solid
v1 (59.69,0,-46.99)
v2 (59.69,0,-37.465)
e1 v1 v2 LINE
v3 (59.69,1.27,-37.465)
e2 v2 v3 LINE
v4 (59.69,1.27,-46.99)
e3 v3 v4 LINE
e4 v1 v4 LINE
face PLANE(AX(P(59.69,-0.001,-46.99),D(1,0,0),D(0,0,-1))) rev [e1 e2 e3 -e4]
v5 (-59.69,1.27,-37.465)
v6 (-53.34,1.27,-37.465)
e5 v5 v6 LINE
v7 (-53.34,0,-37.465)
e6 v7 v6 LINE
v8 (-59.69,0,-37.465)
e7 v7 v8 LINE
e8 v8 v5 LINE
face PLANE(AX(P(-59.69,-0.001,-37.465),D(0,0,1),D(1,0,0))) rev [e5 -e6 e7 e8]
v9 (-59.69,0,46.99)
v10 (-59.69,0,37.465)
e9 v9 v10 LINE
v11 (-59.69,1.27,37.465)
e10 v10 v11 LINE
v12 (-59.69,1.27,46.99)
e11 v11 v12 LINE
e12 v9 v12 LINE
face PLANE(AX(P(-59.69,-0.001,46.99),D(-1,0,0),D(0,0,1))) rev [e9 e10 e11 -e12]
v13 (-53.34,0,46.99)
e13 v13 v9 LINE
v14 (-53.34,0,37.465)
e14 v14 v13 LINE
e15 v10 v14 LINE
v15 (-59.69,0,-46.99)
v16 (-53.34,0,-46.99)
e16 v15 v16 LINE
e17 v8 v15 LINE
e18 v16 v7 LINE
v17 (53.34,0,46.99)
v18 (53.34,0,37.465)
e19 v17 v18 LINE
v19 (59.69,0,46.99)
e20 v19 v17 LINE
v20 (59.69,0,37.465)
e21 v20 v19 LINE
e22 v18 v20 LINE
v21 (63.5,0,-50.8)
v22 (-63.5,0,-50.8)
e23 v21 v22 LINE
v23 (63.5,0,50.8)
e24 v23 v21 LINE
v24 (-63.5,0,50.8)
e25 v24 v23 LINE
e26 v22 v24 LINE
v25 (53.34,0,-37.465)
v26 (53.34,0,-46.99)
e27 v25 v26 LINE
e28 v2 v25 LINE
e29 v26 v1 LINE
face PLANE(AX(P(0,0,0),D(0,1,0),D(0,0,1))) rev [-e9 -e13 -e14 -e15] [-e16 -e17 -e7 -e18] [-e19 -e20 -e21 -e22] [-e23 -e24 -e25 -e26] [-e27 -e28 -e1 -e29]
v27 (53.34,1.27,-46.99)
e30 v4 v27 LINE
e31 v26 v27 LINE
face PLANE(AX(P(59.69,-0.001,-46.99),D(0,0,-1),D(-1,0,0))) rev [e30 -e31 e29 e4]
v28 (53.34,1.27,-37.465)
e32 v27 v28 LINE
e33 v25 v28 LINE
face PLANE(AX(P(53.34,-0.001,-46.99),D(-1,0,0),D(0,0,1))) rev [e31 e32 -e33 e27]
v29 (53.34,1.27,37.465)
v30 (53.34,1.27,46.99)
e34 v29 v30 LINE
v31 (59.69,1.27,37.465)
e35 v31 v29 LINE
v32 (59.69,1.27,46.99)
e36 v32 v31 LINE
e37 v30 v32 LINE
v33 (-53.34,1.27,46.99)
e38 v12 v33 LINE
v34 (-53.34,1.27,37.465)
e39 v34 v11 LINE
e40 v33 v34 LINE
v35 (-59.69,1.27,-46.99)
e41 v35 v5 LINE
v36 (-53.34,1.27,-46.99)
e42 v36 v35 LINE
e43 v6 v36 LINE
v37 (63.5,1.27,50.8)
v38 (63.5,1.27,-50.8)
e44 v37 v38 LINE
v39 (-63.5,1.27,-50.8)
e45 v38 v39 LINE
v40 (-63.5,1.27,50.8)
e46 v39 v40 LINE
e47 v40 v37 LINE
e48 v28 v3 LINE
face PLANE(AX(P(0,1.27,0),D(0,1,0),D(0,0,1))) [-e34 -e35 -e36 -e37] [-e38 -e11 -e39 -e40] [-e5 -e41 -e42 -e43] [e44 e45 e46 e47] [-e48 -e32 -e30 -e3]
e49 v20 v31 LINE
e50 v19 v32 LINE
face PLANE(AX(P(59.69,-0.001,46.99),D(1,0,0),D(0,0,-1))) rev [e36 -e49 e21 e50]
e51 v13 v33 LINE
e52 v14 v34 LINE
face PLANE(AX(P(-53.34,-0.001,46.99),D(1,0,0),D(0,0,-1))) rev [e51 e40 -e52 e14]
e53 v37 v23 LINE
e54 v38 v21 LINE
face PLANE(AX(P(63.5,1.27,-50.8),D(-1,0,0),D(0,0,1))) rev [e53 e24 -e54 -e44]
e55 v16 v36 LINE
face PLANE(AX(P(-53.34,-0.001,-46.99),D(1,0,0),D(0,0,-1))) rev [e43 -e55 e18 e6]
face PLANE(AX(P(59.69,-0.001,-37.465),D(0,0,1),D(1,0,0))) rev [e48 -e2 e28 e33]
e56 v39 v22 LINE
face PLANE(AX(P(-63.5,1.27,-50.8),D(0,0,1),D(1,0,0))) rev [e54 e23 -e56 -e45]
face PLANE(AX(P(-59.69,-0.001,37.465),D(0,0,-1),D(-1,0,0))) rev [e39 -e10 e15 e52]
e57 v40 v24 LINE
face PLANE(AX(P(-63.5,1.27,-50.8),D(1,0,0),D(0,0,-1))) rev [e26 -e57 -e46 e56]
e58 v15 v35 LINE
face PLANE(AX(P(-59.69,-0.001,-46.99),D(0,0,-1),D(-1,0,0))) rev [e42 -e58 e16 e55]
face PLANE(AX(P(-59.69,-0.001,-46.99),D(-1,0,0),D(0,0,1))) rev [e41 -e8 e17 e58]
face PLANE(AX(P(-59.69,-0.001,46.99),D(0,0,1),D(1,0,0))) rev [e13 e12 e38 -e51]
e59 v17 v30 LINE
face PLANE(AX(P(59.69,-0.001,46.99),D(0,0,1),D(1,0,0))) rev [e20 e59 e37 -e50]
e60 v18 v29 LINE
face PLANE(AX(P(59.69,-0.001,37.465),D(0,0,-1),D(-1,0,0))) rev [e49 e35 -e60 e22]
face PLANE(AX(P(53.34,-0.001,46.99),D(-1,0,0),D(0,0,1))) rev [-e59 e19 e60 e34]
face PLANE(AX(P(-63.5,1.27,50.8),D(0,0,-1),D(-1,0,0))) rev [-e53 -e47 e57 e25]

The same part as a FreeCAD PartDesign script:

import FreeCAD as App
import Part
import Sketcher
from FreeCAD import Vector
Q = App.Units.Quantity


def add_polygon(sketch, points):
    """Adds a closed chain of lines whose ends are joined by coincident constraints."""
    first, n = sketch.GeometryCount, len(points)
    for a, b in zip(points, points[1:] + points[:1]):
        sketch.addGeometry(Part.LineSegment(App.Vector(*a, 0), App.Vector(*b, 0)), False)
    for i in range(n):
        sketch.addConstraint(Sketcher.Constraint("Coincident", first + i, 2, first + (i + 1) % n, 1))

doc = App.newDocument("Part")
params = doc.addObject("Spreadsheet::Sheet", "Params")
for row, (alias, value) in enumerate([
    ("sketch1_width", "5 in"),
    ("sketch1_height", "4 in"),
    ("pad1_length", "0.05 in"),
    ("sketch2_width", "0.25 in"),
    ("sketch2_height", "0.375 in"),
    ("sketch3_width", "0.25 in"),
    ("sketch3_height", "0.375 in"),
    ("sketch4_width", "0.25 in"),
    ("sketch4_height", "0.375 in"),
    ("sketch5_width", "0.25 in"),
    ("sketch5_height", "0.375 in"),
], start=1):
    params.set(f"A{row}", alias)
    params.set(f"B{row}", "=" + value)
    params.setAlias(f"B{row}", alias)

body = doc.addObject("PartDesign::Body", "Body")

# Sketch on XZ plane
sketch1 = body.newObject("Sketcher::SketchObject", "Sketch")
sketch1.AttachmentSupport = (doc.getObject("XZ_Plane"), [""])
sketch1.MapMode = "FlatFace"
add_polygon(sketch1, [(-64, -51), (-64, 51), (64, 51), (64, -51)])  # lines 0-3
sketch1.addConstraint(Sketcher.Constraint("Vertical", 0))
sketch1.addConstraint(Sketcher.Constraint("Horizontal", 1))
sketch1.addConstraint(Sketcher.Constraint("Vertical", 2))
sketch1.addConstraint(Sketcher.Constraint("Horizontal", 3))
sketch1.addConstraint(Sketcher.Constraint("Symmetric", 0, 2, 2, 2, -1, 1))
sketch1.addConstraint(Sketcher.Constraint("DistanceX", 1, 1, 1, 2, Q("5 in")))
sketch1.addConstraint(Sketcher.Constraint("DistanceY", 0, 1, 0, 2, Q("4 in")))
sketch1.setExpression("Constraints[9]", "Params.sketch1_width")
sketch1.setExpression("Constraints[10]", "Params.sketch1_height")
pad1 = body.newObject("PartDesign::Pad", "Pad")
pad1.Profile = sketch1
pad1.setExpression("Length", "Params.pad1_length")
pad1.Reversed = True

# Sketch on XZ plane
sketch2 = body.newObject("Sketcher::SketchObject", "Sketch001")
sketch2.AttachmentSupport = (doc.getObject("XZ_Plane"), [""])
sketch2.MapMode = "FlatFace"
sketch2.AttachmentOffset = App.Placement(Vector(0, 0, -0.05 * 25.4), App.Rotation())
add_polygon(sketch2, [(-60, -47), (-60, -37), (-53, -37), (-53, -47)])  # lines 0-3
sketch2.addConstraint(Sketcher.Constraint("Vertical", 0))
sketch2.addConstraint(Sketcher.Constraint("Horizontal", 1))
sketch2.addConstraint(Sketcher.Constraint("Vertical", 2))
sketch2.addConstraint(Sketcher.Constraint("Horizontal", 3))
sketch2.addConstraint(Sketcher.Constraint("DistanceX", 1, 1, 1, 2, Q("0.25 in")))
sketch2.addConstraint(Sketcher.Constraint("DistanceX", 1, 2, -1, 1, Q("2.1 in")))
sketch2.addConstraint(Sketcher.Constraint("DistanceY", 0, 1, 0, 2, Q("0.375 in")))
sketch2.addConstraint(Sketcher.Constraint("DistanceY", 2, 2, -1, 1, Q("1.85 in")))
sketch2.setExpression("Constraints[8]", "Params.sketch2_width")
sketch2.setExpression("Constraints[10]", "Params.sketch2_height")
pocket1 = body.newObject("PartDesign::Pocket", "Pocket")
pocket1.Profile = sketch2
pocket1.Type = "UpToFirst"
pocket1.Reversed = True

# Sketch on XZ plane
sketch3 = body.newObject("Sketcher::SketchObject", "Sketch002")
sketch3.AttachmentSupport = (doc.getObject("XZ_Plane"), [""])
sketch3.MapMode = "FlatFace"
sketch3.AttachmentOffset = App.Placement(Vector(0, 0, -0.05 * 25.4), App.Rotation())
add_polygon(sketch3, [(53, -47), (53, -37), (60, -37), (60, -47)])  # lines 0-3
sketch3.addConstraint(Sketcher.Constraint("Vertical", 0))
sketch3.addConstraint(Sketcher.Constraint("Horizontal", 1))
sketch3.addConstraint(Sketcher.Constraint("Vertical", 2))
sketch3.addConstraint(Sketcher.Constraint("Horizontal", 3))
sketch3.addConstraint(Sketcher.Constraint("DistanceX", 1, 1, 1, 2, Q("0.25 in")))
sketch3.addConstraint(Sketcher.Constraint("DistanceX", -1, 1, 0, 2, Q("2.1 in")))
sketch3.addConstraint(Sketcher.Constraint("DistanceY", 0, 1, 0, 2, Q("0.375 in")))
sketch3.addConstraint(Sketcher.Constraint("DistanceY", 2, 2, -1, 1, Q("1.85 in")))
sketch3.setExpression("Constraints[8]", "Params.sketch3_width")
sketch3.setExpression("Constraints[10]", "Params.sketch3_height")
pocket2 = body.newObject("PartDesign::Pocket", "Pocket001")
pocket2.Profile = sketch3
pocket2.Type = "UpToFirst"
pocket2.Reversed = True

# Sketch on XZ plane
sketch4 = body.newObject("Sketcher::SketchObject", "Sketch003")
sketch4.AttachmentSupport = (doc.getObject("XZ_Plane"), [""])
sketch4.MapMode = "FlatFace"
sketch4.AttachmentOffset = App.Placement(Vector(0, 0, -0.05 * 25.4), App.Rotation())
add_polygon(sketch4, [(53, 37), (53, 47), (60, 47), (60, 37)])  # lines 0-3
sketch4.addConstraint(Sketcher.Constraint("Vertical", 0))
sketch4.addConstraint(Sketcher.Constraint("Horizontal", 1))
sketch4.addConstraint(Sketcher.Constraint("Vertical", 2))
sketch4.addConstraint(Sketcher.Constraint("Horizontal", 3))
sketch4.addConstraint(Sketcher.Constraint("DistanceX", 1, 1, 1, 2, Q("0.25 in")))
sketch4.addConstraint(Sketcher.Constraint("DistanceX", -1, 1, 0, 2, Q("2.1 in")))
sketch4.addConstraint(Sketcher.Constraint("DistanceY", 0, 1, 0, 2, Q("0.375 in")))
sketch4.addConstraint(Sketcher.Constraint("DistanceY", -1, 1, 0, 2, Q("1.85 in")))
sketch4.setExpression("Constraints[8]", "Params.sketch4_width")
sketch4.setExpression("Constraints[10]", "Params.sketch4_height")
pocket3 = body.newObject("PartDesign::Pocket", "Pocket002")
pocket3.Profile = sketch4
pocket3.Type = "UpToFirst"
pocket3.Reversed = True

# Sketch on XZ plane
sketch5 = body.newObject("Sketcher::SketchObject", "Sketch004")
sketch5.AttachmentSupport = (doc.getObject("XZ_Plane"), [""])
sketch5.MapMode = "FlatFace"
sketch5.AttachmentOffset = App.Placement(Vector(0, 0, -0.05 * 25.4), App.Rotation())
add_polygon(sketch5, [(-60, 37), (-60, 47), (-53, 47), (-53, 37)])  # lines 0-3
sketch5.addConstraint(Sketcher.Constraint("Vertical", 0))
sketch5.addConstraint(Sketcher.Constraint("Horizontal", 1))
sketch5.addConstraint(Sketcher.Constraint("Vertical", 2))
sketch5.addConstraint(Sketcher.Constraint("Horizontal", 3))
sketch5.addConstraint(Sketcher.Constraint("DistanceX", 1, 1, 1, 2, Q("0.25 in")))
sketch5.addConstraint(Sketcher.Constraint("DistanceX", 1, 2, -1, 1, Q("2.1 in")))
sketch5.addConstraint(Sketcher.Constraint("DistanceY", 0, 1, 0, 2, Q("0.375 in")))
sketch5.addConstraint(Sketcher.Constraint("DistanceY", -1, 1, 0, 2, Q("1.85 in")))
sketch5.setExpression("Constraints[8]", "Params.sketch5_width")
sketch5.setExpression("Constraints[10]", "Params.sketch5_height")
pocket4 = body.newObject("PartDesign::Pocket", "Pocket003")
pocket4.Profile = sketch5
pocket4.Type = "UpToFirst"
pocket4.Reversed = True

doc.recompute()
